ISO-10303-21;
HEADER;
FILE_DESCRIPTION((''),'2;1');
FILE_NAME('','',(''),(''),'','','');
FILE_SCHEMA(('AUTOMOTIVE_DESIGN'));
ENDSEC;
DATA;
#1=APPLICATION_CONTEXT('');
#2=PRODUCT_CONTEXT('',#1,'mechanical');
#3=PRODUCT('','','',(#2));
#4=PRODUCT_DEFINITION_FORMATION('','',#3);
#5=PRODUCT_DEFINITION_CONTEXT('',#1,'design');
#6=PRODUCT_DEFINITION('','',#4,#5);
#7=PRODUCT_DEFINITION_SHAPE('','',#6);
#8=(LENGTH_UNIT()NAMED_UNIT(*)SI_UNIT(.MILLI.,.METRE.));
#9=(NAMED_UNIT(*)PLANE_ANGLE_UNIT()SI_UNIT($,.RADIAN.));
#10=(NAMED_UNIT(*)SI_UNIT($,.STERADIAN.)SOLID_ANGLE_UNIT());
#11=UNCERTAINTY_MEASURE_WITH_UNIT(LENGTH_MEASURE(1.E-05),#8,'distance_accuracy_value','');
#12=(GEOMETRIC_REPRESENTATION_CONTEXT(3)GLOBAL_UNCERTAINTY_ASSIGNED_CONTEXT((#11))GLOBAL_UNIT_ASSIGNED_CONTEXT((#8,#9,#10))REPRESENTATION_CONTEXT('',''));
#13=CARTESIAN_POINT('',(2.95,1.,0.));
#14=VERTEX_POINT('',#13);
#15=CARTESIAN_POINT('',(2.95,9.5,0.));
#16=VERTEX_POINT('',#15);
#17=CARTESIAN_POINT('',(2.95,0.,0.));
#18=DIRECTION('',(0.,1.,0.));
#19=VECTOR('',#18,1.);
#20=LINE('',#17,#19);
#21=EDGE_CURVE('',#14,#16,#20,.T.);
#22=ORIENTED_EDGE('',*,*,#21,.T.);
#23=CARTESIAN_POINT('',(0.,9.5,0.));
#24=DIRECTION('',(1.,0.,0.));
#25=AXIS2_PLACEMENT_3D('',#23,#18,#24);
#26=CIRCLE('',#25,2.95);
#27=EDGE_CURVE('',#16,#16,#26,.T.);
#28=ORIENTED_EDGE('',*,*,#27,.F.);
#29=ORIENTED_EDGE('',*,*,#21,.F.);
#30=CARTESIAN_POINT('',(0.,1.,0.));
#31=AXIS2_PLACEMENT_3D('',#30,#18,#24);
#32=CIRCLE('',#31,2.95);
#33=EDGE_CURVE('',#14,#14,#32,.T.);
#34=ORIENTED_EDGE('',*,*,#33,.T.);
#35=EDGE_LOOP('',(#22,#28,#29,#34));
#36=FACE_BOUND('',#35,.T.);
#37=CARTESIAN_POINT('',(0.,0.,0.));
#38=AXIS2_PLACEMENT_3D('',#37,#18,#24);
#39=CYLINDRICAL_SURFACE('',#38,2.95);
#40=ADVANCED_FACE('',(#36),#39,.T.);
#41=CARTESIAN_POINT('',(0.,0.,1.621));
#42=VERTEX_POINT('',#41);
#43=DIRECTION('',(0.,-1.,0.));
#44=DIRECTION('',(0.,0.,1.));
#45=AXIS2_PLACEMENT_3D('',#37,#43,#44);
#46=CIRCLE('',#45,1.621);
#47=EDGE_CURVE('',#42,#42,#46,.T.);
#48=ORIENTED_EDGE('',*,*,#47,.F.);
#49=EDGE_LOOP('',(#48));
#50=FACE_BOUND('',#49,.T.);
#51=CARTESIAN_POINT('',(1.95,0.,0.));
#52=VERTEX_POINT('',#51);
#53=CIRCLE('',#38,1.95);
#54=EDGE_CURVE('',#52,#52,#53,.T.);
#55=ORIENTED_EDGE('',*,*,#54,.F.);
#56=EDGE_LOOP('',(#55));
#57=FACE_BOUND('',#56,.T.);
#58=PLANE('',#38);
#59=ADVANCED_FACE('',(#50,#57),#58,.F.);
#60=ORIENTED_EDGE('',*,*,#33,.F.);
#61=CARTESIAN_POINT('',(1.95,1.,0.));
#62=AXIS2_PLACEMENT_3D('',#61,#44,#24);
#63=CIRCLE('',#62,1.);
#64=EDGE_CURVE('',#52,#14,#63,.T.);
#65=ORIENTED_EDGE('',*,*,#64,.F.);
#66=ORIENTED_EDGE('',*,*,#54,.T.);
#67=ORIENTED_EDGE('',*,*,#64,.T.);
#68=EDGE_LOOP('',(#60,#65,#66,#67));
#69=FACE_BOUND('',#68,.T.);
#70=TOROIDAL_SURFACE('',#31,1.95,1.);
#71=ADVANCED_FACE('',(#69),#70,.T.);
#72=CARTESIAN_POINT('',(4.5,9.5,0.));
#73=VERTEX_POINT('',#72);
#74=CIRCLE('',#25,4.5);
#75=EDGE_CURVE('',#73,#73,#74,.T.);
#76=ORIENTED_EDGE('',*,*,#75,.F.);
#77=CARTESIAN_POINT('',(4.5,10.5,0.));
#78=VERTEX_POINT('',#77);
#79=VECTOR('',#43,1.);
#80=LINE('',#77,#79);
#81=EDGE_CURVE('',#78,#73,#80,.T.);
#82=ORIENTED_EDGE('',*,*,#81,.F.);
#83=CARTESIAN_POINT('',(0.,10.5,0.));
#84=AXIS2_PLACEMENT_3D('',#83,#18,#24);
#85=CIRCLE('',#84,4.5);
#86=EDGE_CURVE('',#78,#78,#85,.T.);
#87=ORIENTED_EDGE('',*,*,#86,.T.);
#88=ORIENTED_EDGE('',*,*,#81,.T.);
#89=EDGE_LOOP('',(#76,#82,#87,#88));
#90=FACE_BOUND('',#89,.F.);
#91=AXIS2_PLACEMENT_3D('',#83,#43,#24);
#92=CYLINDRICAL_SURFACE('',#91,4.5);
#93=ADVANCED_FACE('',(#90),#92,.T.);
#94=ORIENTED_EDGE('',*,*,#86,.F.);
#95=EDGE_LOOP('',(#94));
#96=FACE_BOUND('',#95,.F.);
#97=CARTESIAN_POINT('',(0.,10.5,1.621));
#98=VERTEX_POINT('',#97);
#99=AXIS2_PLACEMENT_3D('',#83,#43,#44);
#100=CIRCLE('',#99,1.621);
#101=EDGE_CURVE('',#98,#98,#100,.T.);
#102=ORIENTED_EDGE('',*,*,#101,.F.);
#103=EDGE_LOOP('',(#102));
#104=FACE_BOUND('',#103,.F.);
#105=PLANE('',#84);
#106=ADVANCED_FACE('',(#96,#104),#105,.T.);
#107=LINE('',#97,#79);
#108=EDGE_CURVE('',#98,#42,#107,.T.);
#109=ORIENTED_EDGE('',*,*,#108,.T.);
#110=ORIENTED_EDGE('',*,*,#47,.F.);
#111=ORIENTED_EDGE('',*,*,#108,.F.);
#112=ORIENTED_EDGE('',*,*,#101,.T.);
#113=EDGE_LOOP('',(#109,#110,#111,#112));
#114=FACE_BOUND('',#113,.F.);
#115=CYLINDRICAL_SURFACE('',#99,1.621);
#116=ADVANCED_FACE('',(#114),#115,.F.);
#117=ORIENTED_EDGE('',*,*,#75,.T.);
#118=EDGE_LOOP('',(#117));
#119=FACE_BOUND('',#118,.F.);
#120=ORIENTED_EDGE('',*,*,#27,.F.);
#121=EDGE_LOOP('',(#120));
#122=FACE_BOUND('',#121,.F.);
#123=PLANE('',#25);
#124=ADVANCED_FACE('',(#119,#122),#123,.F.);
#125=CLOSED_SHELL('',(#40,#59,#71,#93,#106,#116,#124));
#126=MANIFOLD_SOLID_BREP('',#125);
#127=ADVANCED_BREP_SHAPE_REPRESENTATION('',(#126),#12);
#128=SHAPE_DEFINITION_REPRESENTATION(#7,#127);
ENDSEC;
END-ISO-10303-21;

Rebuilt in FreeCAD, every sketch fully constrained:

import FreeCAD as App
import Part
import Sketcher

V = App.Vector


def edges_at(feature, points):
    """Names of the edges that pass closest to the given points."""
    edges = feature.Shape.Edges
    near = lambda p: min(range(len(edges)), key=lambda i: edges[i].distToShape(Part.Vertex(*p))[0])
    return sorted({f"Edge{near(p) + 1}" for p in points})


def add_polygon(sketch, points):
    """Adds a closed chain of lines whose ends are joined by coincident constraints."""
    first, n = sketch.GeometryCount, len(points)
    for a, b in zip(points, points[1:] + points[:1]):
        sketch.addGeometry(Part.LineSegment(App.Vector(*a, 0), App.Vector(*b, 0)), False)
    for i in range(n):
        sketch.addConstraint(Sketcher.Constraint("Coincident", first + i, 2, first + (i + 1) % n, 1))

doc = App.newDocument("Part")
params = doc.addObject("Spreadsheet::Sheet", "Params")
for row, (alias, value) in enumerate([
    ("sketch1_width", "4.5 mm"),
    ("sketch1_height", "10.5 mm"),
    ("sketch1_height2", "9.5 mm"),
    ("sketch1_width2", "2.95 mm"),
    ("revolution_angle", "360 deg"),
    ("hole_diameter", "3.242 mm"),
    ("fillet_radius", "1 mm"),
], start=1):
    params.set(f"A{row}", alias)
    params.set(f"B{row}", "=" + value)
    params.setAlias(f"B{row}", alias)

body = doc.addObject("PartDesign::Body", "Body")

# Sketch on XY plane
sketch1 = body.newObject("Sketcher::SketchObject", "Sketch")
sketch1.AttachmentSupport = (doc.getObject("XY_Plane"), [""])
sketch1.MapMode = "FlatFace"
add_polygon(sketch1, [(0, 10.5), (0, 0), (3, 0), (3, 9.5), (4.5, 9.5), (4.5, 10.5)])  # lines 0-5
sketch1.addConstraint([
    Sketcher.Constraint("Vertical", 0),
    Sketcher.Constraint("Horizontal", 1),
    Sketcher.Constraint("Vertical", 2),
    Sketcher.Constraint("Horizontal", 3),
    Sketcher.Constraint("Vertical", 4),
    Sketcher.Constraint("Horizontal", 5),
    Sketcher.Constraint("Coincident", 0, 2, -1, 1),
    Sketcher.Constraint("DistanceX", 5, 2, 5, 1, 4.5),
    Sketcher.Constraint("DistanceY", 0, 2, 0, 1, 10.5),
    Sketcher.Constraint("DistanceY", 2, 1, 2, 2, 9.5),
    Sketcher.Constraint("DistanceX", 1, 1, 1, 2, 2.95),
])
sketch1.setExpression("Constraints[13]", "Params.sketch1_width")
sketch1.setExpression("Constraints[14]", "Params.sketch1_height")
sketch1.setExpression("Constraints[15]", "Params.sketch1_height2")
sketch1.setExpression("Constraints[16]", "Params.sketch1_width2")
revolution = body.newObject("PartDesign::Revolution", "Revolution")
revolution.Profile = sketch1
revolution.ReferenceAxis = (sketch1, ["V_Axis"])
revolution.setExpression("Angle", "Params.revolution_angle")

# Sketch on XZ plane
sketch2 = body.newObject("Sketcher::SketchObject", "Sketch001")
sketch2.AttachmentSupport = (doc.getObject("XZ_Plane"), [""])
sketch2.MapMode = "FlatFace"
sketch2.AttachmentOffset = App.Placement(V(0, 0, -10.5), App.Rotation())
sketch2.addGeometry(Part.Circle(V(0, 0, 0), V(0, 0, 1), 1.6), False)
sketch2.addConstraint([
    Sketcher.Constraint("Coincident", 0, 3, -1, 1),
    Sketcher.Constraint("Diameter", 0, 3.242),
])
doc.recompute()
hole = body.newObject("PartDesign::Hole", "Hole")
hole.Profile = sketch2
hole.ThreadType = "None"
hole.setExpression("Diameter", "Params.hole_diameter")
hole.DepthType = "ThroughAll"
hole.Reversed = True
doc.recompute()

fillet = body.newObject("PartDesign::Fillet", "Fillet")
fillet.Base = (hole, edges_at(hole, [(-2.95, 0, 0)]))
fillet.setExpression("Radius", "Params.fillet_radius")

doc.recompute()
